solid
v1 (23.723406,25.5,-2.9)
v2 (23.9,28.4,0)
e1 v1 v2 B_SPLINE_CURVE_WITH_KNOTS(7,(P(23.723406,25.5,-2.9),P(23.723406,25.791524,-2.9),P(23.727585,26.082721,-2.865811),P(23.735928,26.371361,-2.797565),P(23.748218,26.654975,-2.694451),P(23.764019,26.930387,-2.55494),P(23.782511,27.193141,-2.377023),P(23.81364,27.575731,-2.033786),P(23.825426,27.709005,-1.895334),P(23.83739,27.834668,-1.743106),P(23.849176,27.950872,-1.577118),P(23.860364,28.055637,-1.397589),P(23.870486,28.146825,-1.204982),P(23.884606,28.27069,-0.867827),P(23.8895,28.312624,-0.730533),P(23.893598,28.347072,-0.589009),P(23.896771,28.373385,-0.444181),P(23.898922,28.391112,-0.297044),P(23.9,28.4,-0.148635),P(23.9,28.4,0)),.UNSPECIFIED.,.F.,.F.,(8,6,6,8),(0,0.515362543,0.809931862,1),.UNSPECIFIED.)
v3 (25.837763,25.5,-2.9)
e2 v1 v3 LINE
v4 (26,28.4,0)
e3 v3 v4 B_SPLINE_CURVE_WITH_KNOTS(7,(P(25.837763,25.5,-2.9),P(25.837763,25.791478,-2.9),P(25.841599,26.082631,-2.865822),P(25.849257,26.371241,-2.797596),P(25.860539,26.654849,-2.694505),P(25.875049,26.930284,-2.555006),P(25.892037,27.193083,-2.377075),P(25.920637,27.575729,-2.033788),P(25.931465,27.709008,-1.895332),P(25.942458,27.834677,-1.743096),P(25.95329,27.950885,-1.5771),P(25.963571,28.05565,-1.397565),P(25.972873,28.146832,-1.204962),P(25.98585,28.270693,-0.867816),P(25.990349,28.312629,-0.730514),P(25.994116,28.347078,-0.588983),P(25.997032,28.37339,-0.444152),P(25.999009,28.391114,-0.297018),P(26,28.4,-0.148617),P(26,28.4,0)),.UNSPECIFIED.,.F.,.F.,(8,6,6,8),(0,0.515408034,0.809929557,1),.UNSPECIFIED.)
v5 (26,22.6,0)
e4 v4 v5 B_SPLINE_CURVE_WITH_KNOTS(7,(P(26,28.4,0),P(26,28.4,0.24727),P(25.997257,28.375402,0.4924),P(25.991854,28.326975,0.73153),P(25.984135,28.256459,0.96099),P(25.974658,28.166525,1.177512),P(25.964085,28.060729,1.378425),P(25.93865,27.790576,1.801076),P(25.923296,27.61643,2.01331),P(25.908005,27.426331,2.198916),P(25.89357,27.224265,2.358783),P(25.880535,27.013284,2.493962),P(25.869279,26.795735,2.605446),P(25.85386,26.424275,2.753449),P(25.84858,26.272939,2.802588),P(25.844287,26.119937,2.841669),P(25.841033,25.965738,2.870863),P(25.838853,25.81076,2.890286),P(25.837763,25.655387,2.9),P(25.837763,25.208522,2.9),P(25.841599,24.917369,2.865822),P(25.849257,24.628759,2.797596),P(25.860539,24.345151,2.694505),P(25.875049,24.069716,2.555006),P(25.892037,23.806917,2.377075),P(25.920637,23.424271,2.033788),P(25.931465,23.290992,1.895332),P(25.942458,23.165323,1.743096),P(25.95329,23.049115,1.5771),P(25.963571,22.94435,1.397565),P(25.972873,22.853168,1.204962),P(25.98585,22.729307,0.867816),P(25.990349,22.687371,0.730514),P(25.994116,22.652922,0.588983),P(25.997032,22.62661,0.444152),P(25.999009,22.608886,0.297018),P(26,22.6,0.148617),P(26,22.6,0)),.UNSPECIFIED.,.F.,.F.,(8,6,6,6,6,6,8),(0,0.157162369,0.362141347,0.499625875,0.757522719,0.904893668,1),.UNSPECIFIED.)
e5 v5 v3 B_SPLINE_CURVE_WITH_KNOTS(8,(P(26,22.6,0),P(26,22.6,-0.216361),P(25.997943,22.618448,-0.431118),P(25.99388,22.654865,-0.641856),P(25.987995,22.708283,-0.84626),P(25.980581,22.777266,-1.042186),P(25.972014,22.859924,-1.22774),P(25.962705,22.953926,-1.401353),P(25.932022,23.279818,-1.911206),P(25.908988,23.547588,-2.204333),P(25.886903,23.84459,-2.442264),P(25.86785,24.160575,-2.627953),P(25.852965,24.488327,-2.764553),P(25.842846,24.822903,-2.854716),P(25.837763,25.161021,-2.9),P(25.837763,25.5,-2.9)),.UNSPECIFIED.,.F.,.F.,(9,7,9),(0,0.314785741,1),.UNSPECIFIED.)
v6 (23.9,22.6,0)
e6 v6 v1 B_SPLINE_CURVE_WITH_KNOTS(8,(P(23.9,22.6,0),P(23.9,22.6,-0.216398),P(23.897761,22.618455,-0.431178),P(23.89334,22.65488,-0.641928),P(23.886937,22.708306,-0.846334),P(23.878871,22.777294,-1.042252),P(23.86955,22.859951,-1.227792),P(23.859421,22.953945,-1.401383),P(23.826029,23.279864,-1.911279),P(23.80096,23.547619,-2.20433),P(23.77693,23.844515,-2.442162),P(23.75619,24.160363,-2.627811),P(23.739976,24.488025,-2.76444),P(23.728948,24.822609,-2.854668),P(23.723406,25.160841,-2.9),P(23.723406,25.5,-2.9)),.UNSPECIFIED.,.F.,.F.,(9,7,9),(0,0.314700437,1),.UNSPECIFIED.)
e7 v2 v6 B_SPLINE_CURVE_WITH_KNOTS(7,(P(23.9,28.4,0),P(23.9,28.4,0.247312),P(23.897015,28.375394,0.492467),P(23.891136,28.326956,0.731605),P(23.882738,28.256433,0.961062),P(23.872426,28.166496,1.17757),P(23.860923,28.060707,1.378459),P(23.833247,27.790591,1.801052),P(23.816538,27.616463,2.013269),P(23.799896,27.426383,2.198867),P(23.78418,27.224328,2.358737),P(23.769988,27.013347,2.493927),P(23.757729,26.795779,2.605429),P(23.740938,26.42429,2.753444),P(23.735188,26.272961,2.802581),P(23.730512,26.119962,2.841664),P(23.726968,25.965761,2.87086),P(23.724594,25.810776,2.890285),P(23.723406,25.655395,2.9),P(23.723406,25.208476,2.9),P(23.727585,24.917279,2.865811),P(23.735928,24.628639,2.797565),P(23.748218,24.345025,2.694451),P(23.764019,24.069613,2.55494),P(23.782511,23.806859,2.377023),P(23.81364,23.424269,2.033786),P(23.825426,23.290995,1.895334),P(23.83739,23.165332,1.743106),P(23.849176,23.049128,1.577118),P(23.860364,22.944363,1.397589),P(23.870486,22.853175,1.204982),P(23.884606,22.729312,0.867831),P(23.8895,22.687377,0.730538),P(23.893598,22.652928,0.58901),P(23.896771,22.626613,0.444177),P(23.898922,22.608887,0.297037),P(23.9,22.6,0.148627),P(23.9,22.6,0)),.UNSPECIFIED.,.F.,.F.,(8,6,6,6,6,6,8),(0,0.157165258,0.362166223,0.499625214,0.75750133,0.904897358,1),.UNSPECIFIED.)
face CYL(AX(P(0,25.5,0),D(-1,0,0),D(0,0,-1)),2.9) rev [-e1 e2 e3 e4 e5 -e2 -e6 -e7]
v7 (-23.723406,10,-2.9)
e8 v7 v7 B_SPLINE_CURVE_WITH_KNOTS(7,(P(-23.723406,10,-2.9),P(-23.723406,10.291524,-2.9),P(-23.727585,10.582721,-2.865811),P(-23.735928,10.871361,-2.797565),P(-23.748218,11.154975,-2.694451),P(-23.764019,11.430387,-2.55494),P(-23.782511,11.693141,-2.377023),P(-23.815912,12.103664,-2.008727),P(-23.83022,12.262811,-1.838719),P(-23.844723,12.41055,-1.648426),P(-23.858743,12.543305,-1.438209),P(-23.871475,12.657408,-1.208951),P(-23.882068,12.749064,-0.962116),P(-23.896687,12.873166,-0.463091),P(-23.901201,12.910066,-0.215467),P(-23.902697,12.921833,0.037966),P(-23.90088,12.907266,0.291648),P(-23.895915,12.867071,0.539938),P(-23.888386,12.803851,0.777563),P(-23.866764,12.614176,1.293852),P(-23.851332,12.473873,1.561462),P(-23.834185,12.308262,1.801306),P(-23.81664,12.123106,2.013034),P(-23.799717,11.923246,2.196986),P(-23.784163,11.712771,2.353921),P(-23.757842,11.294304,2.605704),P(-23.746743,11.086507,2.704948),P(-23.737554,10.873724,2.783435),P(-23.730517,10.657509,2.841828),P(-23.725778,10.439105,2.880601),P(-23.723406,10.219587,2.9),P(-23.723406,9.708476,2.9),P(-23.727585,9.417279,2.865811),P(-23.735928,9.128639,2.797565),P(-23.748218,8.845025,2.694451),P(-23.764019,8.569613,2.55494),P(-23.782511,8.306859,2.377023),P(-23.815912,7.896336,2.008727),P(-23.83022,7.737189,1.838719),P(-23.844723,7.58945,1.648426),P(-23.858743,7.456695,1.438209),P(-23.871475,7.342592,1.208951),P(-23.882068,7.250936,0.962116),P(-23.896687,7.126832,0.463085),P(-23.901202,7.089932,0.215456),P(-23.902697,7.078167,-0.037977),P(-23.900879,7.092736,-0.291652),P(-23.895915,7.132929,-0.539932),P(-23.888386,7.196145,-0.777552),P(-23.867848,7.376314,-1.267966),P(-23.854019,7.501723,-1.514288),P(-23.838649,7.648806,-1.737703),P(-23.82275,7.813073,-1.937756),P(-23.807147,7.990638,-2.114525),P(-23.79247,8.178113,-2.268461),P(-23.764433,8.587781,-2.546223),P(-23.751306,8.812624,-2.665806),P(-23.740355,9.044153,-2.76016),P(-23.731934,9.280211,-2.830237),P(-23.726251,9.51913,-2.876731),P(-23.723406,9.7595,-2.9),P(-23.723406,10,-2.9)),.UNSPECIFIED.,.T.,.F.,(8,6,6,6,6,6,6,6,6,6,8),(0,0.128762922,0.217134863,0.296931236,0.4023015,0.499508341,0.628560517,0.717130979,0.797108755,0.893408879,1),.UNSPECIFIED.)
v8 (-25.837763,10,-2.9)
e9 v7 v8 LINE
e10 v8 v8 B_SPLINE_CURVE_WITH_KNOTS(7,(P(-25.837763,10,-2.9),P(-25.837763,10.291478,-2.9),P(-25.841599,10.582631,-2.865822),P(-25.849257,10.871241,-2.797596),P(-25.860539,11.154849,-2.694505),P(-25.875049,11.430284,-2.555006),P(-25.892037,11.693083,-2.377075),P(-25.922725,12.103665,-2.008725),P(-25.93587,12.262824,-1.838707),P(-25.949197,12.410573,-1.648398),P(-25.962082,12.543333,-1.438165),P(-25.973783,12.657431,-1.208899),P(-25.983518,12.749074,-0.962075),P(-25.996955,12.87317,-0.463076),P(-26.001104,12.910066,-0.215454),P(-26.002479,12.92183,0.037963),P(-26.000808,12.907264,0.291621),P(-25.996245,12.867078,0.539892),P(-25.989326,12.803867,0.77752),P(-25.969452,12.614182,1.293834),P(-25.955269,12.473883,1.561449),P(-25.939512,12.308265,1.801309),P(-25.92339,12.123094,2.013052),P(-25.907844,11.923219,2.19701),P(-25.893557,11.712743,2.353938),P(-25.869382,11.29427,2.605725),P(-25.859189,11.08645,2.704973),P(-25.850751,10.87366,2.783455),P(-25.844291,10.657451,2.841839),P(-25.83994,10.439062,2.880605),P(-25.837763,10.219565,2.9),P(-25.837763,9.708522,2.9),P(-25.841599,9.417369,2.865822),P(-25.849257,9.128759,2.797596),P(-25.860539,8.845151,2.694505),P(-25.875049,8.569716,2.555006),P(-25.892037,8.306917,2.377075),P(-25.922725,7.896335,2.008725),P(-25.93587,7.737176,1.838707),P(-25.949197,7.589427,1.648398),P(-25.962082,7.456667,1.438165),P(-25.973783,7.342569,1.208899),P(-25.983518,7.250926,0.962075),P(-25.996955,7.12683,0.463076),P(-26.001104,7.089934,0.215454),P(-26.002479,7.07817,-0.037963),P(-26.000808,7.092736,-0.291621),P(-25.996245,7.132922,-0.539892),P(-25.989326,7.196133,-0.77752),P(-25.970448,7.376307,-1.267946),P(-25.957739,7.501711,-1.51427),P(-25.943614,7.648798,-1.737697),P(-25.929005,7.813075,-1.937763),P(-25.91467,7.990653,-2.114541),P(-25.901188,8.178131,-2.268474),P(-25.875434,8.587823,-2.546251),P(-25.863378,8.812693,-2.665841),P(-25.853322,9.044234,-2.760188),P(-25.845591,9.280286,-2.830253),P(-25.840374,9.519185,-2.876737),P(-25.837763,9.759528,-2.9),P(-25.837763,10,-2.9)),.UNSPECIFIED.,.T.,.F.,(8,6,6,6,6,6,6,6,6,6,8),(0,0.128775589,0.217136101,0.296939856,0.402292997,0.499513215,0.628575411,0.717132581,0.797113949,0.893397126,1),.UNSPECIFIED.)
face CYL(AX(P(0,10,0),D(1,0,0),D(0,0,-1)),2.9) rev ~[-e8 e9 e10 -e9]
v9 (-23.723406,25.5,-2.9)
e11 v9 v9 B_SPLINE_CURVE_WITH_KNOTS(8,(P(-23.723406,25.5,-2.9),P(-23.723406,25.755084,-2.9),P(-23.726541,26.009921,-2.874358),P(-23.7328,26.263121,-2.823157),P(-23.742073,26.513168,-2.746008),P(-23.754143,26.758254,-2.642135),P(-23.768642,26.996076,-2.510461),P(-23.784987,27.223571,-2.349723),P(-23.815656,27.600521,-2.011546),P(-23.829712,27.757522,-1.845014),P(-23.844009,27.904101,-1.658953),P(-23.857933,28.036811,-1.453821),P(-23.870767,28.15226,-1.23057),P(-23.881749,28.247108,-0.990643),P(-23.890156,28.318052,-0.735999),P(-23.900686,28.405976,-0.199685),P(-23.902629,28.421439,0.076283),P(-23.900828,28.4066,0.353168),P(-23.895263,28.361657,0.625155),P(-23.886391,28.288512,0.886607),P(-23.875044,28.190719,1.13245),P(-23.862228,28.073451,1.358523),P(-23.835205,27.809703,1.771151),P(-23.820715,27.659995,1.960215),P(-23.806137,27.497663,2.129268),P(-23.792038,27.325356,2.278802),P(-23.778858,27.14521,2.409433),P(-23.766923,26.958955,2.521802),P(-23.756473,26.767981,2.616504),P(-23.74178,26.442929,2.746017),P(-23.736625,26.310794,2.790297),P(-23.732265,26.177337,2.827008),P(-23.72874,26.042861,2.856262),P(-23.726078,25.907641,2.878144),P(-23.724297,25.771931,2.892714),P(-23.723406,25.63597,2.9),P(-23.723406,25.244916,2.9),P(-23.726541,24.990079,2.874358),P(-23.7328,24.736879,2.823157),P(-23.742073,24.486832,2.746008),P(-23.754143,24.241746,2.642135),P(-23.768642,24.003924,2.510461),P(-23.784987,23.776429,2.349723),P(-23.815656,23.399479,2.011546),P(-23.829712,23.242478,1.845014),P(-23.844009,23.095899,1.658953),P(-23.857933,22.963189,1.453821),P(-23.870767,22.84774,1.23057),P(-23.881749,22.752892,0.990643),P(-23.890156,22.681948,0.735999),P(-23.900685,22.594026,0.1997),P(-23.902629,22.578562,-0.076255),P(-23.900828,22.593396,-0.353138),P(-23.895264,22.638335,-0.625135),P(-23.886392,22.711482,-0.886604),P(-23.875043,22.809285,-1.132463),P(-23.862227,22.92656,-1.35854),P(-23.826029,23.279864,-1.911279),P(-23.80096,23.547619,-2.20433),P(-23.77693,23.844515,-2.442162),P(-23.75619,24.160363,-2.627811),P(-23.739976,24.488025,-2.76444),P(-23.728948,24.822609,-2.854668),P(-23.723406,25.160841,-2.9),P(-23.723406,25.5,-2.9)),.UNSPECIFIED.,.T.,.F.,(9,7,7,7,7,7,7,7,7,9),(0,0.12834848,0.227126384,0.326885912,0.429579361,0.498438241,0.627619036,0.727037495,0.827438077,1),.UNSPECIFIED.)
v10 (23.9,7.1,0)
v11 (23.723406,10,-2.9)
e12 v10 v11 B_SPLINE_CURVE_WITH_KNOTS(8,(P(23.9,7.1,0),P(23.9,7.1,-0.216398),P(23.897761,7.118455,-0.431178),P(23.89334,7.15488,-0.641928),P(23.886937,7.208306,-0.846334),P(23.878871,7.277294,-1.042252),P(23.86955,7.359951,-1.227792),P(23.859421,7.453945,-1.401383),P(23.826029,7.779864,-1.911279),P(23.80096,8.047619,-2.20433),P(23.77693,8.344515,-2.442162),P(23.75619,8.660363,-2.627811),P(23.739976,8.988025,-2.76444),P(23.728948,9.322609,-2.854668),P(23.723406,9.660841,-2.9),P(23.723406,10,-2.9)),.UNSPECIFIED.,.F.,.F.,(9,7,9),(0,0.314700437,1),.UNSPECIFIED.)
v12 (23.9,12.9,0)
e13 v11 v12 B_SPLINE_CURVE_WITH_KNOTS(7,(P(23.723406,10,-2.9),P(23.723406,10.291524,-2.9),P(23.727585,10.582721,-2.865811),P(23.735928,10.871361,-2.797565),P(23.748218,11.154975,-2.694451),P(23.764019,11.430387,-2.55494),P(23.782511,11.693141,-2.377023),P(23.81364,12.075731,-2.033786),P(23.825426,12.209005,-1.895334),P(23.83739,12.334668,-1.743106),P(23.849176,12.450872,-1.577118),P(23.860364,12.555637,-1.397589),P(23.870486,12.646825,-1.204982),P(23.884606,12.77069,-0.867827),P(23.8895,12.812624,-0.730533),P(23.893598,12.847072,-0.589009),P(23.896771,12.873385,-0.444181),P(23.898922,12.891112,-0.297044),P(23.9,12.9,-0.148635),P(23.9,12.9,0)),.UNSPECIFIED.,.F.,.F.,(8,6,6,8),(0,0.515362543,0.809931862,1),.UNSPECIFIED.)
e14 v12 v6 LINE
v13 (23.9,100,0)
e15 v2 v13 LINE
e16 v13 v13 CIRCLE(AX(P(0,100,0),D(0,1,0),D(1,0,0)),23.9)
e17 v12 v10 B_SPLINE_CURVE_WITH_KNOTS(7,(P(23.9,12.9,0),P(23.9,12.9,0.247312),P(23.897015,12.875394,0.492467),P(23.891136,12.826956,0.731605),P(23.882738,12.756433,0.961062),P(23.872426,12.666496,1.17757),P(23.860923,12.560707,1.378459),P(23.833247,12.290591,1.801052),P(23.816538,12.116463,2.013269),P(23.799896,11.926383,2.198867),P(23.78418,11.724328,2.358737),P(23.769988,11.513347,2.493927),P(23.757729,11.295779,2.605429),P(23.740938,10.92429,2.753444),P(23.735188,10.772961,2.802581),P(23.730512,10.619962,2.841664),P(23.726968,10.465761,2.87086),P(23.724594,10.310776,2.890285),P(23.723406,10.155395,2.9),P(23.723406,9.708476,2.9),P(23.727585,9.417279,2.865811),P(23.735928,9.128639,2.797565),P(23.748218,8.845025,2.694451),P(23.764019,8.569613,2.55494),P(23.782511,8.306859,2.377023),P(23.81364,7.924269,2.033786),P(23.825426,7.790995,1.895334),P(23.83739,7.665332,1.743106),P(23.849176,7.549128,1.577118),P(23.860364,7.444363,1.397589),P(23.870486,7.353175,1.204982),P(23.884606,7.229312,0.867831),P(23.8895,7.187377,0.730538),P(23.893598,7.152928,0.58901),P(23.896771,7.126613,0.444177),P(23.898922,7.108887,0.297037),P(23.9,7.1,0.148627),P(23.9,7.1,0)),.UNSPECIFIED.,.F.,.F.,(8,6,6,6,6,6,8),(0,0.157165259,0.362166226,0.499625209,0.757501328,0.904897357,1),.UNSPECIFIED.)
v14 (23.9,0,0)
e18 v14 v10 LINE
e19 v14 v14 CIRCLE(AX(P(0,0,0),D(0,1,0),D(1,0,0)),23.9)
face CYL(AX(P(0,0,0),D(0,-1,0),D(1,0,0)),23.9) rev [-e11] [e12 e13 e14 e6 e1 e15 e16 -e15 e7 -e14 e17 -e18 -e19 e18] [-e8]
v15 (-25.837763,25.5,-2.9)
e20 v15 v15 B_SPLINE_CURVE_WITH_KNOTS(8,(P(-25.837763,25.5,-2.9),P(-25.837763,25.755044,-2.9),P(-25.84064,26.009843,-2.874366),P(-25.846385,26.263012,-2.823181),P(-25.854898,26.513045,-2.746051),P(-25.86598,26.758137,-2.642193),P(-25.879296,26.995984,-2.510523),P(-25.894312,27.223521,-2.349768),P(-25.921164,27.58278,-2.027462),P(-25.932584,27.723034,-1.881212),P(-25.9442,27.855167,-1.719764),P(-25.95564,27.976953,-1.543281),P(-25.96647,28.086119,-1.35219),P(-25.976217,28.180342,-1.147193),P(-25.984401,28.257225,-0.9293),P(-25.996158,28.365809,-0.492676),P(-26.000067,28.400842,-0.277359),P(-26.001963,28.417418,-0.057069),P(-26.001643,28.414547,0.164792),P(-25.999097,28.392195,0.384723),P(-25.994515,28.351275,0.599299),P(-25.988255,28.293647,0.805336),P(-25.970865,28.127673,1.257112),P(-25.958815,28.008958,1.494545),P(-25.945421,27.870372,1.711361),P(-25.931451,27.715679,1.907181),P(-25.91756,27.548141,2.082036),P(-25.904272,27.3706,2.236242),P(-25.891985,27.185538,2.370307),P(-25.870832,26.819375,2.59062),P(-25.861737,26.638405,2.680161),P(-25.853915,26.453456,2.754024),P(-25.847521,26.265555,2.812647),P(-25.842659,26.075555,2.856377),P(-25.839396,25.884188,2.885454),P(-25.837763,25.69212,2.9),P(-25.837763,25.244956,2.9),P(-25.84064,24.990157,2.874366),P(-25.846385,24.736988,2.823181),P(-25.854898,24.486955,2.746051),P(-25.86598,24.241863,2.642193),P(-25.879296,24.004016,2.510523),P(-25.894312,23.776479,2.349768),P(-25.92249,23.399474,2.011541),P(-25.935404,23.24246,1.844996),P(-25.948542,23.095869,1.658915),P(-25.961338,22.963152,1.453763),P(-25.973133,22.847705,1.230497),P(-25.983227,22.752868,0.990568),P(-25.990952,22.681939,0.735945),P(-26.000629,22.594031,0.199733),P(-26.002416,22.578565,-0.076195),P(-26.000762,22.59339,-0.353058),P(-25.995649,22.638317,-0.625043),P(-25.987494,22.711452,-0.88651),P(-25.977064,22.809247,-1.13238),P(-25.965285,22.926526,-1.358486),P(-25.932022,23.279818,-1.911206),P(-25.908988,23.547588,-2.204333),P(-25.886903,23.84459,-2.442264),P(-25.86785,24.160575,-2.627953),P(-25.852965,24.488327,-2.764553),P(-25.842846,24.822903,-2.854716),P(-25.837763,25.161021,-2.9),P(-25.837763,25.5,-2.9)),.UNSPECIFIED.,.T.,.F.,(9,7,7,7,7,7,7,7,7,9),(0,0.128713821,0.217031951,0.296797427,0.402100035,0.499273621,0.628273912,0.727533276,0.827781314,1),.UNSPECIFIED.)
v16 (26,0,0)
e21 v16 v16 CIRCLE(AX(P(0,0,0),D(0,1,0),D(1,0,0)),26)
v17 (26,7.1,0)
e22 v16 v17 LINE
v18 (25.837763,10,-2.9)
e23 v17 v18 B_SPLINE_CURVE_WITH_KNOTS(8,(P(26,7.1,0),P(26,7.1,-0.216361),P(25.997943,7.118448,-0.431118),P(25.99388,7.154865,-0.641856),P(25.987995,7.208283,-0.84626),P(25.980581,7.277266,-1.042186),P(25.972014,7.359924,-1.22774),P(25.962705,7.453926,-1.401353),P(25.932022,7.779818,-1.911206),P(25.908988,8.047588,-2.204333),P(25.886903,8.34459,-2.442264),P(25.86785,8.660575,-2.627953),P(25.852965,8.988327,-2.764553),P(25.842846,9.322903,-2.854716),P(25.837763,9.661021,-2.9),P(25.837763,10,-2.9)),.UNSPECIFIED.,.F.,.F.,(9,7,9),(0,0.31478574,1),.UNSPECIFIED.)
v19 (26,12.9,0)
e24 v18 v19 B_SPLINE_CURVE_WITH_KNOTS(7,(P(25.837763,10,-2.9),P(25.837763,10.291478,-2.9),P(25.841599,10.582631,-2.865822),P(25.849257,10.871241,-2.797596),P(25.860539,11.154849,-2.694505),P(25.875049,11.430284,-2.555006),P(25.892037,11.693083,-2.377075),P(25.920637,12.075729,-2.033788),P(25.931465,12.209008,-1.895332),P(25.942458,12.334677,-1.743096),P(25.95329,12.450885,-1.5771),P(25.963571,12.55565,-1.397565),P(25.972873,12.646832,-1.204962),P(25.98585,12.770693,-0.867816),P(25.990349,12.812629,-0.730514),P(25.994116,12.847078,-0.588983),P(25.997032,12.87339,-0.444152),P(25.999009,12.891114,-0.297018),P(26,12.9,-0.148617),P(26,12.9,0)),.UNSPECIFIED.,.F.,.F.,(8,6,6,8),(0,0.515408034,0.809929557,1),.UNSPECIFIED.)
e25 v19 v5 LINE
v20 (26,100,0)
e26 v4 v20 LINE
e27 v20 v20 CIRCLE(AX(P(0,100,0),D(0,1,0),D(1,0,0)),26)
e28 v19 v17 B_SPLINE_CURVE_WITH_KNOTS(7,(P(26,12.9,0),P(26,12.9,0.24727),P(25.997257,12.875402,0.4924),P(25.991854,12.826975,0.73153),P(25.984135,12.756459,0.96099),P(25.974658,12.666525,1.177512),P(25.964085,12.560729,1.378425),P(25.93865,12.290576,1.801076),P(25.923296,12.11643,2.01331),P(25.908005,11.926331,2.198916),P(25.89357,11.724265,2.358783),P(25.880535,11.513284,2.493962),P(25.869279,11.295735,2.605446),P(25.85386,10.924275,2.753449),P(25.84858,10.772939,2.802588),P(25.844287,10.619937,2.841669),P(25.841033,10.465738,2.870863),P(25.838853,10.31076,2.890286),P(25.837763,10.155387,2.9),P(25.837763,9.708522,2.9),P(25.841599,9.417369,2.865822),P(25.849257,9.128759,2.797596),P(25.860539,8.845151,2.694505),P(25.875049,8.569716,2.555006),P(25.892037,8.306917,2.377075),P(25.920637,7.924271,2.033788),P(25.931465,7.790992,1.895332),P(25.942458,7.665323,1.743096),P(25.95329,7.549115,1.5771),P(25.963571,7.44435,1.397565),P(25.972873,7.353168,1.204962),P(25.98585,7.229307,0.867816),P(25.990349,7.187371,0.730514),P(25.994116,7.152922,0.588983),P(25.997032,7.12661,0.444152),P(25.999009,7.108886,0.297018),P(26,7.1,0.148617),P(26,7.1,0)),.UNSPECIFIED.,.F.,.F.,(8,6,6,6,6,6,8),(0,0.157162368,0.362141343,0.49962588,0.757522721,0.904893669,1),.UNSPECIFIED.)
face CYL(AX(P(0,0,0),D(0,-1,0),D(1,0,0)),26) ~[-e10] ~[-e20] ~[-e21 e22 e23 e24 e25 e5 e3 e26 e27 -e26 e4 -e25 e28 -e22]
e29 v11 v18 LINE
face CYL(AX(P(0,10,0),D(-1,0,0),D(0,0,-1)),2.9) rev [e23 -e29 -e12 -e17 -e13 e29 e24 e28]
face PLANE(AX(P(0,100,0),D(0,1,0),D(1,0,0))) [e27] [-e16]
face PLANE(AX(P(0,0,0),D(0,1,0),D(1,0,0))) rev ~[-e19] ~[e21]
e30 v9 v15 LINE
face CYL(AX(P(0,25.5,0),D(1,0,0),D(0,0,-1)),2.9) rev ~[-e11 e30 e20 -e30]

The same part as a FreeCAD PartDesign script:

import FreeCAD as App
import Part
import Sketcher
from FreeCAD import Vector

doc = App.newDocument("Part")
body = doc.addObject("PartDesign::Body", "Body")

sketch1 = body.newObject("Sketcher::SketchObject", "Sketch")
sketch1.AttachmentSupport = (doc.getObject("XZ_Plane"), [""])
sketch1.MapMode = "FlatFace"
sketch1.addGeometry(Part.Circle(Vector(0, 0, 0), Vector(0, 0, 1), 26), False)
sketch1.addGeometry(Part.Circle(Vector(0, 0, 0), Vector(0, 0, 1), 24), False)
sketch1.addConstraint(Sketcher.Constraint("Coincident", 0, 3, -1, 1))
sketch1.addConstraint(Sketcher.Constraint("Coincident", 1, 3, -1, 1))
sketch1.addConstraint(Sketcher.Constraint("Diameter", 0, 52.0))
sketch1.addConstraint(Sketcher.Constraint("Diameter", 1, 47.8))
pad1 = body.newObject("PartDesign::Pad", "Pad")
pad1.Profile = sketch1
pad1.Length = 100
pad1.Reversed = True

sketch2 = body.newObject("Sketcher::SketchObject", "Sketch001")
sketch2.AttachmentSupport = (doc.getObject("YZ_Plane"), [""])
sketch2.MapMode = "FlatFace"
sketch2.addGeometry(Part.Circle(Vector(10, 0, 0), Vector(0, 0, 1), 2.9), False)
sketch2.addGeometry(Part.Circle(Vector(25.5, 0, 0), Vector(0, 0, 1), 2.9), False)
sketch2.addConstraint(Sketcher.Constraint("Equal", 0, 1))
sketch2.addConstraint(Sketcher.Constraint("PointOnObject", 0, 3, -1))
sketch2.addConstraint(Sketcher.Constraint("PointOnObject", 1, 3, -1))
sketch2.addConstraint(Sketcher.Constraint("Diameter", 0, 5.8))
sketch2.addConstraint(Sketcher.Constraint("DistanceX", -1, 1, 0, 3, 10.0))
sketch2.addConstraint(Sketcher.Constraint("DistanceX", -1, 1, 1, 3, 25.5))
pocket1 = body.newObject("PartDesign::Pocket", "Pocket")
pocket1.Profile = sketch2
pocket1.Type = "ThroughAll"
pocket1.Midplane = True

doc.recompute()
